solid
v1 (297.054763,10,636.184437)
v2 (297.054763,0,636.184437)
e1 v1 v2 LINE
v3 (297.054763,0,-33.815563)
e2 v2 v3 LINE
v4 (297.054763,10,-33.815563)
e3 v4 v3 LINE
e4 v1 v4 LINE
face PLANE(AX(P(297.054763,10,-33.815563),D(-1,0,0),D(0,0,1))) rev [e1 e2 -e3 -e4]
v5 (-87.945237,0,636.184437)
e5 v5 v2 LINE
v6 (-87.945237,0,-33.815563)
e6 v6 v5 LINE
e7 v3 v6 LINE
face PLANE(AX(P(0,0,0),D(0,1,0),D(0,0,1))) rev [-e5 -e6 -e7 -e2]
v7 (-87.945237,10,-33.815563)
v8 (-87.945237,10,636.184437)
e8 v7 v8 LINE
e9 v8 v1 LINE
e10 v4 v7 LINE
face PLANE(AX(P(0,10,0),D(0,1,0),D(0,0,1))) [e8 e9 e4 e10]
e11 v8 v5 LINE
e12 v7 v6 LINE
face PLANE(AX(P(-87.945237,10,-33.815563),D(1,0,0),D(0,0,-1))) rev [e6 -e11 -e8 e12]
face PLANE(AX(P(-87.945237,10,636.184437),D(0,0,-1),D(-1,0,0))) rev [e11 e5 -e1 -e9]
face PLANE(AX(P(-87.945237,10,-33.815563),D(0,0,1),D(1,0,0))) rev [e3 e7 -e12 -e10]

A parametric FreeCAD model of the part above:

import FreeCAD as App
import Part
import Sketcher

V = App.Vector


def add_polygon(sketch, points):
    """Adds a closed chain of lines whose ends are joined by coincident constraints."""
    first, n = sketch.GeometryCount, len(points)
    for a, b in zip(points, points[1:] + points[:1]):
        sketch.addGeometry(Part.LineSegment(App.Vector(*a, 0), App.Vector(*b, 0)), False)
    for i in range(n):
        sketch.addConstraint(Sketcher.Constraint("Coincident", first + i, 2, first + (i + 1) % n, 1))

doc = App.newDocument("Part")
body = doc.addObject("PartDesign::Body", "Body")

# Sketch on XZ plane
sketch1 = body.newObject("Sketcher::SketchObject", "Sketch")
sketch1.AttachmentSupport = (doc.getObject("XZ_Plane"), [""])
sketch1.MapMode = "FlatFace"
add_polygon(sketch1, [(-87.945237, -33.815563), (-87.945237, 636.184437), (297.054763, 636.184437), (297.054763, -33.815563)])  # lines 0-3
sketch1.addConstraint([
    Sketcher.Constraint("Vertical", 0),
    Sketcher.Constraint("Horizontal", 1),
    Sketcher.Constraint("Vertical", 2),
    Sketcher.Constraint("Horizontal", 3),
    Sketcher.Constraint("DistanceX", 1, 1, 1, 2, 385.0),
    Sketcher.Constraint("DistanceY", 0, 1, 0, 2, 670.0),
    Sketcher.Constraint("DistanceX", 0, 2, -1, 1, 87.945237),
    Sketcher.Constraint("DistanceY", -1, 1, 0, 2, 636.184437),
])
pad1 = body.newObject("PartDesign::Pad", "Pad")
pad1.Profile = sketch1
pad1.Length = 10
pad1.Reversed = True

doc.recompute()
